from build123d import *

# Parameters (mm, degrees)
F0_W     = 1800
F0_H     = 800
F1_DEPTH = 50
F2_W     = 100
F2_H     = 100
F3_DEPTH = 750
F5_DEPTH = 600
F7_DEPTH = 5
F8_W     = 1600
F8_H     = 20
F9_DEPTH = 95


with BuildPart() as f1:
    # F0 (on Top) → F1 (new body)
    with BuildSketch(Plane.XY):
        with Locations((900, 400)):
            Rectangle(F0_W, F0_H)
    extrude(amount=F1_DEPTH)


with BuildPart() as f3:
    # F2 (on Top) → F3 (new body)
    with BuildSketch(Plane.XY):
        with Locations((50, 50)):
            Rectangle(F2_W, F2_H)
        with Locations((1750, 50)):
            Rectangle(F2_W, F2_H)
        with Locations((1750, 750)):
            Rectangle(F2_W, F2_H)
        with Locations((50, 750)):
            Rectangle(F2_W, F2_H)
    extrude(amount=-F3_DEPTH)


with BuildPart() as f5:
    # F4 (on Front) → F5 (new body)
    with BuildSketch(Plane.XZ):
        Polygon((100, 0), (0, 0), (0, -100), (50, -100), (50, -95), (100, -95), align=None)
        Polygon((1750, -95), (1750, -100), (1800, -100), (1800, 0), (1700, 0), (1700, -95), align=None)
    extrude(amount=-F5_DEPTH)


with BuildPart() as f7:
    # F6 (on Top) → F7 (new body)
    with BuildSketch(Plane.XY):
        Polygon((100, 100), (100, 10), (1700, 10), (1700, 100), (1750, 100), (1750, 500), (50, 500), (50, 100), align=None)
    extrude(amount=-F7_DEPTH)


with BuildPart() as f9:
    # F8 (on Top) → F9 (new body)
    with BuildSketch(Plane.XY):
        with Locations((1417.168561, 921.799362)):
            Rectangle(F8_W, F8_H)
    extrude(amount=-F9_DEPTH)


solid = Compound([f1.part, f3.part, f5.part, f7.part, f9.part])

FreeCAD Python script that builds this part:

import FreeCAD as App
import Part
import Sketcher

V = App.Vector
Q = App.Units.Quantity

doc = App.newDocument("Part")
body = doc.addObject("PartDesign::Body", "Body")

# Sketch on XY plane
sketch1 = doc.addObject("Sketcher::SketchObject", "Sketch")
body.addObject(sketch1)
sketch1.AttachmentSupport = (doc.XY_Plane, [""])
sketch1.MapMode = "FlatFace"
sketch1.addGeometry([
    Part.LineSegment(V(0, 800, 0), V(0, 0, 0)),
    Part.LineSegment(V(0, 0, 0), V(1800, 0, 0)),
    Part.LineSegment(V(1800, 0, 0), V(1800, 800, 0)),
    Part.LineSegment(V(1800, 800, 0), V(0, 800, 0)),
], False)
sketch1.addConstraint([
    Sketcher.Constraint("Coincident", 0, 2, 1, 1),
    Sketcher.Constraint("Coincident", 1, 2, 2, 1),
    Sketcher.Constraint("Coincident", 2, 2, 3, 1),
    Sketcher.Constraint("Coincident", 3, 2, 0, 1),
    Sketcher.Constraint("Vertical", 0),
    Sketcher.Constraint("Horizontal", 1),
    Sketcher.Constraint("Vertical", 2),
    Sketcher.Constraint("Horizontal", 3),
    Sketcher.Constraint("Coincident", 0, 2, -1, 1),
    Sketcher.Constraint("DistanceX", 1, 1, 1, 2, Q("1800 mm")),
    Sketcher.Constraint("DistanceY", 0, 2, 0, 1, Q("800 mm")),
])
pad1 = doc.addObject("PartDesign::Pad", "Pad")
body.addObject(pad1)
pad1.Profile = sketch1
pad1.Length = 50
body2 = doc.addObject("PartDesign::Body", "Body001")
body2.AllowCompound = True

# Sketch on XY plane
sketch2 = doc.addObject("Sketcher::SketchObject", "Sketch001")
body2.addObject(sketch2)
sketch2.AttachmentSupport = (doc.getObject("XY_Plane001"), [""])
sketch2.MapMode = "FlatFace"
sketch2.addGeometry([
    Part.LineSegment(V(0, 100, 0), V(0, 0, 0)),  # 0
    Part.LineSegment(V(0, 0, 0), V(100, 0, 0)),  # 1
    Part.LineSegment(V(100, 0, 0), V(100, 100, 0)),  # 2
    Part.LineSegment(V(100, 100, 0), V(0, 100, 0)),  # 3
    Part.LineSegment(V(1700, 100, 0), V(1700, 0, 0)),  # 4
    Part.LineSegment(V(1700, 0, 0), V(1800, 0, 0)),  # 5
    Part.LineSegment(V(1800, 0, 0), V(1800, 100, 0)),  # 6
    Part.LineSegment(V(1800, 100, 0), V(1700, 100, 0)),  # 7
    Part.LineSegment(V(1700, 800, 0), V(1700, 700, 0)),  # 8
    Part.LineSegment(V(1700, 700, 0), V(1800, 700, 0)),  # 9
    Part.LineSegment(V(1800, 700, 0), V(1800, 800, 0)),  # 10
    Part.LineSegment(V(1800, 800, 0), V(1700, 800, 0)),  # 11
    Part.LineSegment(V(0, 800, 0), V(0, 700, 0)),  # 12
    Part.LineSegment(V(0, 700, 0), V(100, 700, 0)),  # 13
    Part.LineSegment(V(100, 700, 0), V(100, 800, 0)),  # 14
    Part.LineSegment(V(100, 800, 0), V(0, 800, 0)),  # 15
], False)
sketch2.addConstraint([
    Sketcher.Constraint("Coincident", 0, 2, 1, 1),
    Sketcher.Constraint("Coincident", 1, 2, 2, 1),
    Sketcher.Constraint("Coincident", 2, 2, 3, 1),
    Sketcher.Constraint("Coincident", 3, 2, 0, 1),
    Sketcher.Constraint("Coincident", 4, 2, 5, 1),
    Sketcher.Constraint("Coincident", 5, 2, 6, 1),
    Sketcher.Constraint("Coincident", 6, 2, 7, 1),
    Sketcher.Constraint("Coincident", 7, 2, 4, 1),
    Sketcher.Constraint("Coincident", 8, 2, 9, 1),
    Sketcher.Constraint("Coincident", 9, 2, 10, 1),
    Sketcher.Constraint("Coincident", 10, 2, 11, 1),
    Sketcher.Constraint("Coincident", 11, 2, 8, 1),
    Sketcher.Constraint("Coincident", 12, 2, 13, 1),
    Sketcher.Constraint("Coincident", 13, 2, 14, 1),
    Sketcher.Constraint("Coincident", 14, 2, 15, 1),
    Sketcher.Constraint("Coincident", 15, 2, 12, 1),
    Sketcher.Constraint("Vertical", 0),
    Sketcher.Constraint("Horizontal", 1),
    Sketcher.Constraint("Vertical", 2),
    Sketcher.Constraint("Horizontal", 3),
    Sketcher.Constraint("Vertical", 4),
    Sketcher.Constraint("Horizontal", 5),
    Sketcher.Constraint("Vertical", 6),
    Sketcher.Constraint("Horizontal", 7),
    Sketcher.Constraint("Vertical", 8),
    Sketcher.Constraint("Horizontal", 9),
    Sketcher.Constraint("Vertical", 10),
    Sketcher.Constraint("Horizontal", 11),
    Sketcher.Constraint("Vertical", 12),
    Sketcher.Constraint("Horizontal", 13),
    Sketcher.Constraint("Vertical", 14),
    Sketcher.Constraint("Horizontal", 15),
    Sketcher.Constraint("Coincident", 0, 2, -1, 1),
    Sketcher.Constraint("PointOnObject", 4, 2, -1),
    Sketcher.Constraint("PointOnObject", 12, 2, -2),
    Sketcher.Constraint("Horizontal", 3, 2, 6, 2),
    Sketcher.Constraint("Horizontal", 9, 2, 12, 2),
    Sketcher.Constraint("Horizontal", 11, 2, 14, 2),
    Sketcher.Constraint("Vertical", 7, 2, 8, 2),
    Sketcher.Constraint("Vertical", 6, 2, 9, 2),
    Sketcher.Constraint("Vertical", 2, 2, 13, 2),
    Sketcher.Constraint("Equal", 3, 5),
    Sketcher.Constraint("Equal", 15, 0),
    Sketcher.Constraint("Equal", 6, 8),
    Sketcher.Constraint("DistanceX", 1, 1, 1, 2, Q("100 mm")),
    Sketcher.Constraint("DistanceX", -1, 1, 4, 2, Q("1700 mm")),
    Sketcher.Constraint("DistanceY", -1, 1, 8, 2, Q("700 mm")),
])
pad2 = doc.addObject("PartDesign::Pad", "Pad001")
body2.addObject(pad2)
pad2.Profile = sketch2
pad2.Length = 750
pad2.Reversed = True
body3 = doc.addObject("PartDesign::Body", "Body002")
body3.AllowCompound = True

# Sketch on XZ plane
sketch3 = doc.addObject("Sketcher::SketchObject", "Sketch002")
body3.addObject(sketch3)
sketch3.AttachmentSupport = (doc.getObject("XZ_Plane002"), [""])
sketch3.MapMode = "FlatFace"
sketch3.addGeometry([
    Part.LineSegment(V(100, 0, 0), V(0, 0, 0)),  # 0
    Part.LineSegment(V(0, 0, 0), V(0, -100, 0)),  # 1
    Part.LineSegment(V(0, -100, 0), V(50, -100, 0)),  # 2
    Part.LineSegment(V(50, -100, 0), V(50, -95, 0)),  # 3
    Part.LineSegment(V(50, -95, 0), V(100, -95, 0)),  # 4
    Part.LineSegment(V(100, -95, 0), V(100, 0, 0)),  # 5
    Part.LineSegment(V(1750, -95, 0), V(1750, -100, 0)),  # 6
    Part.LineSegment(V(1750, -100, 0), V(1800, -100, 0)),  # 7
    Part.LineSegment(V(1800, -100, 0), V(1800, 0, 0)),  # 8
    Part.LineSegment(V(1800, 0, 0), V(1700, 0, 0)),  # 9
    Part.LineSegment(V(1700, 0, 0), V(1700, -95, 0)),  # 10
    Part.LineSegment(V(1700, -95, 0), V(1750, -95, 0)),  # 11
], False)
sketch3.addConstraint([
    Sketcher.Constraint("Coincident", 0, 2, 1, 1),
    Sketcher.Constraint("Coincident", 1, 2, 2, 1),
    Sketcher.Constraint("Coincident", 2, 2, 3, 1),
    Sketcher.Constraint("Coincident", 3, 2, 4, 1),
    Sketcher.Constraint("Coincident", 4, 2, 5, 1),
    Sketcher.Constraint("Coincident", 5, 2, 0, 1),
    Sketcher.Constraint("Coincident", 6, 2, 7, 1),
    Sketcher.Constraint("Coincident", 7, 2, 8, 1),
    Sketcher.Constraint("Coincident", 8, 2, 9, 1),
    Sketcher.Constraint("Coincident", 9, 2, 10, 1),
    Sketcher.Constraint("Coincident", 10, 2, 11, 1),
    Sketcher.Constraint("Coincident", 11, 2, 6, 1),
    Sketcher.Constraint("Horizontal", 0),
    Sketcher.Constraint("Vertical", 1),
    Sketcher.Constraint("Horizontal", 2),
    Sketcher.Constraint("Vertical", 3),
    Sketcher.Constraint("Horizontal", 4),
    Sketcher.Constraint("Vertical", 5),
    Sketcher.Constraint("Vertical", 6),
    Sketcher.Constraint("Horizontal", 7),
    Sketcher.Constraint("Vertical", 8),
    Sketcher.Constraint("Horizontal", 9),
    Sketcher.Constraint("Vertical", 10),
    Sketcher.Constraint("Horizontal", 11),
    Sketcher.Constraint("Coincident", 0, 2, -1, 1),
    Sketcher.Constraint("PointOnObject", 8, 2, -1),
    Sketcher.Constraint("Horizontal", 2, 2, 6, 2),
    Sketcher.Constraint("Horizontal", 4, 2, 10, 2),
    Sketcher.Constraint("Equal", 2, 4),
    Sketcher.Constraint("Equal", 4, 7),
    Sketcher.Constraint("Equal", 0, 9),
    Sketcher.Constraint("Equal", 9, 1),
    Sketcher.Constraint("DistanceX", 0, 2, 0, 1, Q("100 mm")),
    Sketcher.Constraint("DistanceY", 3, 1, 3, 2, Q("5 mm")),
    Sketcher.Constraint("DistanceX", -1, 1, 6, 2, Q("1750 mm")),
])
pad3 = doc.addObject("PartDesign::Pad", "Pad002")
body3.addObject(pad3)
pad3.Profile = sketch3
pad3.Length = 600
pad3.Reversed = True
body4 = doc.addObject("PartDesign::Body", "Body003")

# Sketch on XY plane
sketch4 = doc.addObject("Sketcher::SketchObject", "Sketch003")
body4.addObject(sketch4)
sketch4.AttachmentSupport = (doc.getObject("XY_Plane003"), [""])
sketch4.MapMode = "FlatFace"
sketch4.addGeometry([
    Part.LineSegment(V(100, 100, 0), V(100, 10, 0)),  # 0
    Part.LineSegment(V(100, 10, 0), V(1700, 10, 0)),  # 1
    Part.LineSegment(V(1700, 10, 0), V(1700, 100, 0)),  # 2
    Part.LineSegment(V(1700, 100, 0), V(1750, 100, 0)),  # 3
    Part.LineSegment(V(1750, 100, 0), V(1750, 500, 0)),  # 4
    Part.LineSegment(V(1750, 500, 0), V(50, 500, 0)),  # 5
    Part.LineSegment(V(50, 500, 0), V(50, 100, 0)),  # 6
    Part.LineSegment(V(50, 100, 0), V(100, 100, 0)),  # 7
], False)
sketch4.addConstraint([
    Sketcher.Constraint("Coincident", 0, 2, 1, 1),
    Sketcher.Constraint("Coincident", 1, 2, 2, 1),
    Sketcher.Constraint("Coincident", 2, 2, 3, 1),
    Sketcher.Constraint("Coincident", 3, 2, 4, 1),
    Sketcher.Constraint("Coincident", 4, 2, 5, 1),
    Sketcher.Constraint("Coincident", 5, 2, 6, 1),
    Sketcher.Constraint("Coincident", 6, 2, 7, 1),
    Sketcher.Constraint("Coincident", 7, 2, 0, 1),
    Sketcher.Constraint("Vertical", 0),
    Sketcher.Constraint("Horizontal", 1),
    Sketcher.Constraint("Vertical", 2),
    Sketcher.Constraint("Horizontal", 3),
    Sketcher.Constraint("Vertical", 4),
    Sketcher.Constraint("Horizontal", 5),
    Sketcher.Constraint("Vertical", 6),
    Sketcher.Constraint("Horizontal", 7),
    Sketcher.Constraint("Horizontal", 3, 2, 6, 2),
    Sketcher.Constraint("Equal", 3, 7),
    Sketcher.Constraint("DistanceX", 1, 1, 1, 2, Q("1600 mm")),
    Sketcher.Constraint("DistanceX", 3, 1, 3, 2, Q("50 mm")),
    Sketcher.Constraint("DistanceY", 0, 2, 0, 1, Q("90 mm")),
    Sketcher.Constraint("DistanceY", 4, 1, 4, 2, Q("400 mm")),
    Sketcher.Constraint("DistanceX", -1, 1, 0, 2, Q("100 mm")),
    Sketcher.Constraint("DistanceY", -1, 1, 0, 2, Q("10 mm")),
])
pad4 = doc.addObject("PartDesign::Pad", "Pad003")
body4.addObject(pad4)
pad4.Profile = sketch4
pad4.Length = 5
pad4.Reversed = True
body5 = doc.addObject("PartDesign::Body", "Body004")

# Sketch on XY plane
sketch5 = doc.addObject("Sketcher::SketchObject", "Sketch004")
body5.addObject(sketch5)
sketch5.AttachmentSupport = (doc.getObject("XY_Plane004"), [""])
sketch5.MapMode = "FlatFace"
sketch5.addGeometry([
    Part.LineSegment(V(617, 932, 0), V(617, 912, 0)),
    Part.LineSegment(V(617, 912, 0), V(2217, 912, 0)),
    Part.LineSegment(V(2217, 912, 0), V(2217, 932, 0)),
    Part.LineSegment(V(2217, 932, 0), V(617, 932, 0)),
], False)
sketch5.addConstraint([
    Sketcher.Constraint("Coincident", 0, 2, 1, 1),
    Sketcher.Constraint("Coincident", 1, 2, 2, 1),
    Sketcher.Constraint("Coincident", 2, 2, 3, 1),
    Sketcher.Constraint("Coincident", 3, 2, 0, 1),
    Sketcher.Constraint("Vertical", 0),
    Sketcher.Constraint("Horizontal", 1),
    Sketcher.Constraint("Vertical", 2),
    Sketcher.Constraint("Horizontal", 3),
    Sketcher.Constraint("DistanceX", 1, 1, 1, 2, Q("1600 mm")),
    Sketcher.Constraint("DistanceY", 0, 2, 0, 1, Q("20 mm")),
    Sketcher.Constraint("DistanceX", -1, 1, 0, 2, Q("617.168561 mm")),
    Sketcher.Constraint("DistanceY", -1, 1, 0, 2, Q("911.799362 mm")),
])
pad5 = doc.addObject("PartDesign::Pad", "Pad004")
body5.addObject(pad5)
pad5.Profile = sketch5
pad5.Length = 95
pad5.Reversed = True

doc.recompute()
